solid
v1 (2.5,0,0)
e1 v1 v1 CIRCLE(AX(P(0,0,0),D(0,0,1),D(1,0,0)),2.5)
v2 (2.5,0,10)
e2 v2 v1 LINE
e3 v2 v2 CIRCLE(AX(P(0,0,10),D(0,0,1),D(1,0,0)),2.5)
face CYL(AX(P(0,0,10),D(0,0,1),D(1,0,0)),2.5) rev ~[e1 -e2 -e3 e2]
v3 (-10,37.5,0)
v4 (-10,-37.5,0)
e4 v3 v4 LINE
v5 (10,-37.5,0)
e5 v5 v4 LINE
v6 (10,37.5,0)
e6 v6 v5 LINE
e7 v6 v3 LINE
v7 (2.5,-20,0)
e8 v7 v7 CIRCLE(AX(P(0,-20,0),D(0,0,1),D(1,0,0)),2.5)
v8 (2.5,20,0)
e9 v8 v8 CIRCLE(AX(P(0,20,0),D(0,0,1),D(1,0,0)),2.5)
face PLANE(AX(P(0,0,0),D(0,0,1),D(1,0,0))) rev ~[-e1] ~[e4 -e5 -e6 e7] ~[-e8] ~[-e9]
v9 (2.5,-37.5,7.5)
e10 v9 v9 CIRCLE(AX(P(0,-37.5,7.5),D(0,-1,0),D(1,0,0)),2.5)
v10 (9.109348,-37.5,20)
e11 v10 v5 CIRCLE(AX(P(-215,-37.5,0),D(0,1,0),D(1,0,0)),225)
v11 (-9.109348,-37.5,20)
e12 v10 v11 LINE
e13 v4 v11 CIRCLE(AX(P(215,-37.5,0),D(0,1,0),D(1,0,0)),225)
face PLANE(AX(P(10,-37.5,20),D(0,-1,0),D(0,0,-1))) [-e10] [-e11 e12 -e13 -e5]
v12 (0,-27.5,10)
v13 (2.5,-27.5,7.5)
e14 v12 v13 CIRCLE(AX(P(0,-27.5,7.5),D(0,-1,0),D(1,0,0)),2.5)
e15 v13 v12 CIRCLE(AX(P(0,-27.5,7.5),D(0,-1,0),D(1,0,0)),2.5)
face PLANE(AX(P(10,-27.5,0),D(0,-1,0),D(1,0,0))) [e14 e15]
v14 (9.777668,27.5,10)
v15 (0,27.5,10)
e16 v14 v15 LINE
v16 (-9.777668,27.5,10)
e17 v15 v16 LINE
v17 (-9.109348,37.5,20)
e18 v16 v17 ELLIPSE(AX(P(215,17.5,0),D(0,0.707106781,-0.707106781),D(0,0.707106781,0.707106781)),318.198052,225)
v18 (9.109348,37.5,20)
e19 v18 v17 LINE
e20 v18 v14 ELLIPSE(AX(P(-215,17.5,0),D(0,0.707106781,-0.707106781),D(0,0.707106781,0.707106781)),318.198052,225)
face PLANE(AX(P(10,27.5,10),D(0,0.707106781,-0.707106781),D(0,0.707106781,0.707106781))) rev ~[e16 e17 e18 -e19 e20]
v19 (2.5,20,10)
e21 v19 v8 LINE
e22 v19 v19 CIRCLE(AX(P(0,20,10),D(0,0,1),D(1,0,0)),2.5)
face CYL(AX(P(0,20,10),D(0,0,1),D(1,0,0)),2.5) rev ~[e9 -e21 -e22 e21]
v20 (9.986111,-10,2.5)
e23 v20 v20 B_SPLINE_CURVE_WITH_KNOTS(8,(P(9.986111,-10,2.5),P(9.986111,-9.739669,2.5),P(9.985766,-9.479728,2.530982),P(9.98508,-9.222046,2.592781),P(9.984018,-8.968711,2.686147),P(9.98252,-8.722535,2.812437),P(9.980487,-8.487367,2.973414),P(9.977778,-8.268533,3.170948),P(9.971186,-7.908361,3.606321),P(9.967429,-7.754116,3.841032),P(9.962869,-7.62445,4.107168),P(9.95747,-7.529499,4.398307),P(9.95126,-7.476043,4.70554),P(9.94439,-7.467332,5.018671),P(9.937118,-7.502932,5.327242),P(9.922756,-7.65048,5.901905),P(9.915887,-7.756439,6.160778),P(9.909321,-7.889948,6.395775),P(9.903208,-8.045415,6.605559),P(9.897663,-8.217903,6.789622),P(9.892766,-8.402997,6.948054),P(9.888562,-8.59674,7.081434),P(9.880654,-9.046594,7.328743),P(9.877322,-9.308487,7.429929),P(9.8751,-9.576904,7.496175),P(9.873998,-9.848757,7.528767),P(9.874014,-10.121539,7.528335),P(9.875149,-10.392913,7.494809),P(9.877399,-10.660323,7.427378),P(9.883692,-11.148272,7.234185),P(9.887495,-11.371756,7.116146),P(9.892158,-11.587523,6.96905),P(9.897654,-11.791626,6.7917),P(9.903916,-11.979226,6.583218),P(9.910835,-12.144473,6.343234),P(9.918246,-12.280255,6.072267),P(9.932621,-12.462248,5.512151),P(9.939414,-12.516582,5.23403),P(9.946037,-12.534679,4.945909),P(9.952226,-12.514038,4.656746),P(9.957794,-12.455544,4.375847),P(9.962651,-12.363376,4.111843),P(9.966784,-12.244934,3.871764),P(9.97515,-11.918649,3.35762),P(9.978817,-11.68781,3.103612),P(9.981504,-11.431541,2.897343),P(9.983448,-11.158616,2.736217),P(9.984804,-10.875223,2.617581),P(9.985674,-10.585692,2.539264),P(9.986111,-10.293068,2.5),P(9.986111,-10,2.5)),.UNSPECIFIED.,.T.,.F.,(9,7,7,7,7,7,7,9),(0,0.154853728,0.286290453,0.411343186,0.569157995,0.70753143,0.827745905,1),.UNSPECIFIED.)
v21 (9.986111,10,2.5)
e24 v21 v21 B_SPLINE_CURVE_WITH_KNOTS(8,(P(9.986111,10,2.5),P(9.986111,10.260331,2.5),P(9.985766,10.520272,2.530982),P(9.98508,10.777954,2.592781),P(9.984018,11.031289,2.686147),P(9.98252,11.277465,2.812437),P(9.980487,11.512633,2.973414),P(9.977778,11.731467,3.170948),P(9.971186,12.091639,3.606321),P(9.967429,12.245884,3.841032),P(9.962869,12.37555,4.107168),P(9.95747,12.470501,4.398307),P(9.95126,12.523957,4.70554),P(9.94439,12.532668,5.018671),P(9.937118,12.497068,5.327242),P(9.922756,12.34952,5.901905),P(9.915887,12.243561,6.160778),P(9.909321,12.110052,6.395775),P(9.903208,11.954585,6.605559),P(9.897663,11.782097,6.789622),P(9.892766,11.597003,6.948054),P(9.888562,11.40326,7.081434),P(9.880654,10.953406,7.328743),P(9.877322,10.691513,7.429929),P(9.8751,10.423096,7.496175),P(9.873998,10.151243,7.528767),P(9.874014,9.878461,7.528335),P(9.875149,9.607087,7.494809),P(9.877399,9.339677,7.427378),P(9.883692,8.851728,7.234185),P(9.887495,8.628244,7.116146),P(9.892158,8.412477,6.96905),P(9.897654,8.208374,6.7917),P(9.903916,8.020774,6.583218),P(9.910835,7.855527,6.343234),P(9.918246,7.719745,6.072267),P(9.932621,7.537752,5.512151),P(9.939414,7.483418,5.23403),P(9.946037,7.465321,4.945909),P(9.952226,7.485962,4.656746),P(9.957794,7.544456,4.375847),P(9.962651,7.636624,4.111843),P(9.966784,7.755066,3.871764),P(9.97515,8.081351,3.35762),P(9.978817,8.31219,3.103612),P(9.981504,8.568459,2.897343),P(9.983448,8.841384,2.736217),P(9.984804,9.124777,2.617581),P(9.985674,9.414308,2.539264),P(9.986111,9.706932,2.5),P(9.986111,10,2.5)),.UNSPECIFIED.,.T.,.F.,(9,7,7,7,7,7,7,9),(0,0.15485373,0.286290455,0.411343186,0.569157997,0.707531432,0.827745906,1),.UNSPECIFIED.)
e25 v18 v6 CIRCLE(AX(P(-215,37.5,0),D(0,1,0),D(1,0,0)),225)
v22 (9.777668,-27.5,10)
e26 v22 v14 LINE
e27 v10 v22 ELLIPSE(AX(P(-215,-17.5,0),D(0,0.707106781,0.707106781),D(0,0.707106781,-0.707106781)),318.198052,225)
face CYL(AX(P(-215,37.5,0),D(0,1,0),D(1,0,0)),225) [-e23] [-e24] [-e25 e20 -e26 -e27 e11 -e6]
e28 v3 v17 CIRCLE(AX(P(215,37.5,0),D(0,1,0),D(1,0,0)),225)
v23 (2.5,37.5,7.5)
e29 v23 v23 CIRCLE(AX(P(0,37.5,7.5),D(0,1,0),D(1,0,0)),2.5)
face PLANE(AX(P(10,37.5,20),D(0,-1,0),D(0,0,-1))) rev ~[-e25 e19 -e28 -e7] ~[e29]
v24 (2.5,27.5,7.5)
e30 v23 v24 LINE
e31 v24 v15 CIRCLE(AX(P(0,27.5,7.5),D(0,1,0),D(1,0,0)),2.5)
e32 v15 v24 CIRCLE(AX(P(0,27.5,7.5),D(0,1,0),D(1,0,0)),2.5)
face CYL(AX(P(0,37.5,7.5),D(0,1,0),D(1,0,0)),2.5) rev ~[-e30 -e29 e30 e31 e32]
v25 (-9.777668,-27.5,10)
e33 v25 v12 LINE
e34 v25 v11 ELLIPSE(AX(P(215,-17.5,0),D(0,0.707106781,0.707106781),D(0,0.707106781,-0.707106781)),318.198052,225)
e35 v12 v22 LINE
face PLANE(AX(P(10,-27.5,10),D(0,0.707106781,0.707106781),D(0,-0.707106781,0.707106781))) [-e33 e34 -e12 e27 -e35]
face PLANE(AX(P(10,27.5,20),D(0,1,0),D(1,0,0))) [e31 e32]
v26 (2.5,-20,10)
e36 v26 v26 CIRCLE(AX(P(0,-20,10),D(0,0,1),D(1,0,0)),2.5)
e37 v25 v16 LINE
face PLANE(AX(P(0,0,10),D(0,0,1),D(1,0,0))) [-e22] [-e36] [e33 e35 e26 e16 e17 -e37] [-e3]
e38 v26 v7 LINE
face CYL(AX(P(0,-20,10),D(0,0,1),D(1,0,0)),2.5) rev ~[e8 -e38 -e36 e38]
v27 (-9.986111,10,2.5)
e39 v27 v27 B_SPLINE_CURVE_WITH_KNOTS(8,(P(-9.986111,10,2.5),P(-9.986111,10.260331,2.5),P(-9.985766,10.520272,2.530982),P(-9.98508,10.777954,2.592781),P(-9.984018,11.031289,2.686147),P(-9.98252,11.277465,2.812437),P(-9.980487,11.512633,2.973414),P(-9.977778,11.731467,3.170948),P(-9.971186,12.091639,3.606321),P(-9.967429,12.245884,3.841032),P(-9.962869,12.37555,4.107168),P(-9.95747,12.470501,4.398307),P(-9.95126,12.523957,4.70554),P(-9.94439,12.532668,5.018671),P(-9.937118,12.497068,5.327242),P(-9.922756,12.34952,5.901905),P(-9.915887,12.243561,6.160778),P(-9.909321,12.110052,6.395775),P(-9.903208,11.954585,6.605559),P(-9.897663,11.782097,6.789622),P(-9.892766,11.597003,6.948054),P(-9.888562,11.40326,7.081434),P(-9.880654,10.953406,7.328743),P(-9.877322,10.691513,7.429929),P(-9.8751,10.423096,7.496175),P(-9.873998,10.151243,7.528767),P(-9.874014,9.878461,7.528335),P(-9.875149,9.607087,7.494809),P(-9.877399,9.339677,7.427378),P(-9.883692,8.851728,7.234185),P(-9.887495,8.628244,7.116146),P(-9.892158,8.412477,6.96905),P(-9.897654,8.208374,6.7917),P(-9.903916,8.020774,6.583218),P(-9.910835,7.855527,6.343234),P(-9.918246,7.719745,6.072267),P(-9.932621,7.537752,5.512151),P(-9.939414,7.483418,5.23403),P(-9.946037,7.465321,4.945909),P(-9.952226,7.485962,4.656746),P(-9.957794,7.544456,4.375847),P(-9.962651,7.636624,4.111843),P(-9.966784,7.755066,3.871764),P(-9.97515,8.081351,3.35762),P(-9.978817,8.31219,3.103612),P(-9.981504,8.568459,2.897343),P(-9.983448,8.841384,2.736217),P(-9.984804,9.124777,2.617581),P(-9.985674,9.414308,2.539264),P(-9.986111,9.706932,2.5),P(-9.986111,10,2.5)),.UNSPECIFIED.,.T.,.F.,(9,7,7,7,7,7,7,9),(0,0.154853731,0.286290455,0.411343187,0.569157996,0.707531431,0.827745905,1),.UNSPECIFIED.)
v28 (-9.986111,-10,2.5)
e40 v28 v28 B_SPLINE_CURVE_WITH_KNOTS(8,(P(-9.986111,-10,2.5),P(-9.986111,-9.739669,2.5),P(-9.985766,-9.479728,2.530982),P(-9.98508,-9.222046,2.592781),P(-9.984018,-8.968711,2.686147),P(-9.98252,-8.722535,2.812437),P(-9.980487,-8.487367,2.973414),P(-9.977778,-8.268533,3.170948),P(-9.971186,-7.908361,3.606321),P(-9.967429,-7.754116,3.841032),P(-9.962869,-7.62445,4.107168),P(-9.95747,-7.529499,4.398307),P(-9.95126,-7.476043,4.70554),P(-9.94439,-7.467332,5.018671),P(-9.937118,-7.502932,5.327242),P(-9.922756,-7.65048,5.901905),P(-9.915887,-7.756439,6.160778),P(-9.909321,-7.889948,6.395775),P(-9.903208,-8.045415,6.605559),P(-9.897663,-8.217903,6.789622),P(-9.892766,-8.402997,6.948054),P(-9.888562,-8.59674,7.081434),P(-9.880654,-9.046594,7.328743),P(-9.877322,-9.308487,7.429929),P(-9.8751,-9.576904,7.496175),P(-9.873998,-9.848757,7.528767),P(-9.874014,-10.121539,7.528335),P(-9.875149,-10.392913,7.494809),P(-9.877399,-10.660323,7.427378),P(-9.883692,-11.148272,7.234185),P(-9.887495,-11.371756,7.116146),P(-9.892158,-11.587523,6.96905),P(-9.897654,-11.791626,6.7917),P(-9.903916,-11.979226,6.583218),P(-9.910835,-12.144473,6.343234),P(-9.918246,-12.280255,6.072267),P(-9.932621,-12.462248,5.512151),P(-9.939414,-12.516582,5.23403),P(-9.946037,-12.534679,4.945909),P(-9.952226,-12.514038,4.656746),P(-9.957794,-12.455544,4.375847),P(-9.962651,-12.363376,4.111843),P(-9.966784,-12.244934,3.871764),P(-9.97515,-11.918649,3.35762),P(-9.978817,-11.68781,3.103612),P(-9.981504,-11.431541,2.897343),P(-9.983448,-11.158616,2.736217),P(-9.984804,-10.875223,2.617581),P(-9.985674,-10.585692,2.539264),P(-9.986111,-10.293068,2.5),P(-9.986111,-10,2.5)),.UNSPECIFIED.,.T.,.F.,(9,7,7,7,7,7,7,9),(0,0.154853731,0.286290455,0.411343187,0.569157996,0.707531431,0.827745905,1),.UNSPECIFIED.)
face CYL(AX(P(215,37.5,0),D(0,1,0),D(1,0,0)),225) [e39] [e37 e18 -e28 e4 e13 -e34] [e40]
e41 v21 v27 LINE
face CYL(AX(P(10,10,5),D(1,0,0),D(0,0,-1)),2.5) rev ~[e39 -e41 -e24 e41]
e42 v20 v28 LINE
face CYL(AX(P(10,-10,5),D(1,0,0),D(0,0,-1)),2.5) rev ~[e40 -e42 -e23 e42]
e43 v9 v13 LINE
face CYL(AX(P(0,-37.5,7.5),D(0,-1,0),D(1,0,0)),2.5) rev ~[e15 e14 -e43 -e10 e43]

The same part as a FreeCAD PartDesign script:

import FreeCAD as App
import Part
import Sketcher
from FreeCAD import Vector
Q = App.Units.Quantity

doc = App.newDocument("Part")
body = doc.addObject("PartDesign::Body", "Body")

# Sketch on XY plane
sketch1 = body.newObject("Sketcher::SketchObject", "Sketch")
sketch1.AttachmentSupport = (doc.getObject("XY_Plane"), [""])
sketch1.MapMode = "FlatFace"
sketch1.addGeometry(Part.LineSegment(Vector(-10, 28, 0), Vector(-10, -28, 0)), False)
sketch1.addGeometry(Part.LineSegment(Vector(-10, -28, 0), Vector(10, -28, 0)), False)
sketch1.addGeometry(Part.LineSegment(Vector(10, -28, 0), Vector(10, 28, 0)), False)
sketch1.addGeometry(Part.LineSegment(Vector(10, 28, 0), Vector(-10, 28, 0)), False)
sketch1.addConstraint(Sketcher.Constraint("Coincident", 0, 2, 1, 1))
sketch1.addConstraint(Sketcher.Constraint("Coincident", 1, 2, 2, 1))
sketch1.addConstraint(Sketcher.Constraint("Coincident", 2, 2, 3, 1))
sketch1.addConstraint(Sketcher.Constraint("Coincident", 3, 2, 0, 1))
sketch1.addConstraint(Sketcher.Constraint("Vertical", 0))
sketch1.addConstraint(Sketcher.Constraint("Horizontal", 1))
sketch1.addConstraint(Sketcher.Constraint("Vertical", 2))
sketch1.addConstraint(Sketcher.Constraint("Horizontal", 3))
sketch1.addConstraint(Sketcher.Constraint("Symmetric", 0, 2, 2, 2, -1, 1))
sketch1.addConstraint(Sketcher.Constraint("DistanceX", 1, 1, 1, 2, Q("20 mm")))
sketch1.addConstraint(Sketcher.Constraint("DistanceY", 0, 2, 0, 1, Q("55 mm")))
pad1 = body.newObject("PartDesign::Pad", "Pad")
pad1.Profile = sketch1
pad1.Length = 10

# Sketch on YZ plane
sketch2 = body.newObject("Sketcher::SketchObject", "Sketch001")
sketch2.AttachmentSupport = (doc.getObject("YZ_Plane"), [""])
sketch2.MapMode = "FlatFace"
sketch2.AttachmentOffset = App.Placement(Vector(0, 0, 10), App.Rotation())
sketch2.addGeometry(Part.LineSegment(Vector(38, 20, 0), Vector(28, 10, 0)), False)
sketch2.addGeometry(Part.LineSegment(Vector(28, 10, 0), Vector(28, 0, 0)), False)
sketch2.addGeometry(Part.LineSegment(Vector(28, 0, 0), Vector(38, 0, 0)), False)
sketch2.addGeometry(Part.LineSegment(Vector(38, 0, 0), Vector(38, 20, 0)), False)
sketch2.addGeometry(Part.LineSegment(Vector(-28, 0, 0), Vector(-28, 10, 0)), False)
sketch2.addGeometry(Part.LineSegment(Vector(-28, 10, 0), Vector(-38, 20, 0)), False)
sketch2.addGeometry(Part.LineSegment(Vector(-38, 20, 0), Vector(-38, 0, 0)), False)
sketch2.addGeometry(Part.LineSegment(Vector(-38, 0, 0), Vector(-28, 0, 0)), False)
sketch2.addConstraint(Sketcher.Constraint("Coincident", 0, 2, 1, 1))
sketch2.addConstraint(Sketcher.Constraint("Coincident", 1, 2, 2, 1))
sketch2.addConstraint(Sketcher.Constraint("Coincident", 2, 2, 3, 1))
sketch2.addConstraint(Sketcher.Constraint("Coincident", 3, 2, 0, 1))
sketch2.addConstraint(Sketcher.Constraint("Coincident", 4, 2, 5, 1))
sketch2.addConstraint(Sketcher.Constraint("Coincident", 5, 2, 6, 1))
sketch2.addConstraint(Sketcher.Constraint("Coincident", 6, 2, 7, 1))
sketch2.addConstraint(Sketcher.Constraint("Coincident", 7, 2, 4, 1))
sketch2.addConstraint(Sketcher.Constraint("Vertical", 1))
sketch2.addConstraint(Sketcher.Constraint("Horizontal", 2))
sketch2.addConstraint(Sketcher.Constraint("Vertical", 3))
sketch2.addConstraint(Sketcher.Constraint("Vertical", 4))
sketch2.addConstraint(Sketcher.Constraint("Vertical", 6))
sketch2.addConstraint(Sketcher.Constraint("Horizontal", 7))
sketch2.addConstraint(Sketcher.Constraint("Symmetric", 2, 2, 6, 2, -1, 1))
sketch2.addConstraint(Sketcher.Constraint("Symmetric", 0, 2, 4, 2, -2))
sketch2.addConstraint(Sketcher.Constraint("PointOnObject", 1, 2, -1))
sketch2.addConstraint(Sketcher.Constraint("Perpendicular", 0, 5))
sketch2.addConstraint(Sketcher.Constraint("Horizontal", 3, 2, 5, 2))
sketch2.addConstraint(Sketcher.Constraint("Equal", 7, 1))
sketch2.addConstraint(Sketcher.Constraint("DistanceX", 2, 1, 2, 2, Q("10 mm")))
sketch2.addConstraint(Sketcher.Constraint("DistanceX", 4, 2, 0, 2, Q("55 mm")))
pad2 = body.newObject("PartDesign::Pad", "Pad001")
pad2.Profile = sketch2
pad2.Length = 20
pad2.Reversed = True

# Sketch on XZ plane
sketch3 = body.newObject("Sketcher::SketchObject", "Sketch002")
sketch3.AttachmentSupport = (doc.getObject("XZ_Plane"), [""])
sketch3.MapMode = "FlatFace"
sketch3.AttachmentOffset = App.Placement(Vector(0, 0, 37.5), App.Rotation())
sketch3.addGeometry(Part.Circle(Vector(0, 7.5, 0), Vector(0, 0, 1), 2.5), False)
sketch3.addConstraint(Sketcher.Constraint("PointOnObject", 0, 3, -2))
sketch3.addConstraint(Sketcher.Constraint("Diameter", 0, Q("5 mm")))
sketch3.addConstraint(Sketcher.Constraint("DistanceY", -1, 1, 0, 3, Q("7.5 mm")))
pocket1 = body.newObject("PartDesign::Pocket", "Pocket")
pocket1.Profile = sketch3
pocket1.Length = 10

# Sketch on XY plane
sketch4 = body.newObject("Sketcher::SketchObject", "Sketch003")
sketch4.AttachmentSupport = (doc.getObject("XY_Plane"), [""])
sketch4.MapMode = "FlatFace"
sketch4.AttachmentOffset = App.Placement(Vector(0, 0, 10), App.Rotation())
sketch4.addGeometry(Part.Circle(Vector(0, 20, 0), Vector(0, 0, 1), 2.5), False)
sketch4.addGeometry(Part.Circle(Vector(0, 0, 0), Vector(0, 0, 1), 2.5), False)
sketch4.addGeometry(Part.Circle(Vector(0, -20, 0), Vector(0, 0, 1), 2.5), False)
sketch4.addConstraint(Sketcher.Constraint("Coincident", 1, 3, -1, 1))
sketch4.addConstraint(Sketcher.Constraint("Equal", 0, 1))
sketch4.addConstraint(Sketcher.Constraint("Equal", 1, 2))
sketch4.addConstraint(Sketcher.Constraint("Symmetric", 0, 3, 2, 3, -1, 1))
sketch4.addConstraint(Sketcher.Constraint("PointOnObject", 0, 3, -2))
sketch4.addConstraint(Sketcher.Constraint("Diameter", 0, Q("5 mm")))
sketch4.addConstraint(Sketcher.Constraint("DistanceY", -1, 1, 0, 3, Q("20 mm")))
pocket2 = body.newObject("PartDesign::Pocket", "Pocket001")
pocket2.Profile = sketch4
pocket2.Type = "ThroughAll"

# Sketch on XZ plane
sketch5 = body.newObject("Sketcher::SketchObject", "Sketch004")
sketch5.AttachmentSupport = (doc.getObject("XZ_Plane"), [""])
sketch5.MapMode = "FlatFace"
sketch5.AttachmentOffset = App.Placement(Vector(0, 0, -37.5), App.Rotation())
sketch5.addGeometry(Part.Circle(Vector(0, 7.5, 0), Vector(0, 0, 1), 2.5), False)
sketch5.addConstraint(Sketcher.Constraint("PointOnObject", 0, 3, -2))
sketch5.addConstraint(Sketcher.Constraint("Diameter", 0, Q("5 mm")))
sketch5.addConstraint(Sketcher.Constraint("DistanceY", -1, 1, 0, 3, Q("7.5 mm")))
pocket3 = body.newObject("PartDesign::Pocket", "Pocket002")
pocket3.Profile = sketch5
pocket3.Length = 10
pocket3.Reversed = True

# Sketch on YZ plane
sketch6 = body.newObject("Sketcher::SketchObject", "Sketch005")
sketch6.AttachmentSupport = (doc.getObject("YZ_Plane"), [""])
sketch6.MapMode = "FlatFace"
sketch6.AttachmentOffset = App.Placement(Vector(0, 0, 10), App.Rotation())
sketch6.addGeometry(Part.Circle(Vector(10, 5, 0), Vector(0, 0, 1), 2.5), False)
sketch6.addGeometry(Part.Circle(Vector(-10, 5, 0), Vector(0, 0, 1), 2.5), False)
sketch6.addConstraint(Sketcher.Constraint("Equal", 0, 1))
sketch6.addConstraint(Sketcher.Constraint("Symmetric", 0, 3, 1, 3, -2))
sketch6.addConstraint(Sketcher.Constraint("Diameter", 0, Q("5 mm")))
sketch6.addConstraint(Sketcher.Constraint("DistanceY", -1, 1, 0, 3, Q("5 mm")))
sketch6.addConstraint(Sketcher.Constraint("DistanceX", 1, 3, 0, 3, Q("20 mm")))
pocket4 = body.newObject("PartDesign::Pocket", "Pocket003")
pocket4.Profile = sketch6
pocket4.Type = "ThroughAll"

# Sketch on XZ plane
sketch7 = body.newObject("Sketcher::SketchObject", "Sketch006")
sketch7.AttachmentSupport = (doc.getObject("XZ_Plane"), [""])
sketch7.MapMode = "FlatFace"
sketch7.AttachmentOffset = App.Placement(Vector(0, 0, -37.5), App.Rotation())
sketch7.addGeometry(Part.Circle(Vector(-215, 0, 0), Vector(0, 0, 1), 230), False)
sketch7.addGeometry(Part.Circle(Vector(-215, 0, 0), Vector(0, 0, 1), 225), False)
sketch7.addConstraint(Sketcher.Constraint("Coincident", 1, 3, 0, 3))
sketch7.addConstraint(Sketcher.Constraint("PointOnObject", 0, 3, -1))
sketch7.addConstraint(Sketcher.Constraint("Diameter", 1, Q("450 mm")))
sketch7.addConstraint(Sketcher.Constraint("Diameter", 0, Q("460 mm")))
sketch7.addConstraint(Sketcher.Constraint("DistanceX", 0, 3, -1, 1, Q("215 mm")))
pocket5 = body.newObject("PartDesign::Pocket", "Pocket004")
pocket5.Profile = sketch7
pocket5.Type = "ThroughAll"
pocket5.Reversed = True

# Sketch on XZ plane
sketch8 = body.newObject("Sketcher::SketchObject", "Sketch007")
sketch8.AttachmentSupport = (doc.getObject("XZ_Plane"), [""])
sketch8.MapMode = "FlatFace"
sketch8.AttachmentOffset = App.Placement(Vector(0, 0, -37.5), App.Rotation())
sketch8.addGeometry(Part.Circle(Vector(215, 0, 0), Vector(0, 0, 1), 230), False)
sketch8.addGeometry(Part.Circle(Vector(215, 0, 0), Vector(0, 0, 1), 225), False)
sketch8.addConstraint(Sketcher.Constraint("Coincident", 1, 3, 0, 3))
sketch8.addConstraint(Sketcher.Constraint("PointOnObject", 0, 3, -1))
sketch8.addConstraint(Sketcher.Constraint("Diameter", 1, Q("450 mm")))
sketch8.addConstraint(Sketcher.Constraint("Diameter", 0, Q("460 mm")))
sketch8.addConstraint(Sketcher.Constraint("DistanceX", -1, 1, 0, 3, Q("215 mm")))
pocket6 = body.newObject("PartDesign::Pocket", "Pocket005")
pocket6.Profile = sketch8
pocket6.Type = "ThroughAll"
pocket6.Reversed = True

doc.recompute()
